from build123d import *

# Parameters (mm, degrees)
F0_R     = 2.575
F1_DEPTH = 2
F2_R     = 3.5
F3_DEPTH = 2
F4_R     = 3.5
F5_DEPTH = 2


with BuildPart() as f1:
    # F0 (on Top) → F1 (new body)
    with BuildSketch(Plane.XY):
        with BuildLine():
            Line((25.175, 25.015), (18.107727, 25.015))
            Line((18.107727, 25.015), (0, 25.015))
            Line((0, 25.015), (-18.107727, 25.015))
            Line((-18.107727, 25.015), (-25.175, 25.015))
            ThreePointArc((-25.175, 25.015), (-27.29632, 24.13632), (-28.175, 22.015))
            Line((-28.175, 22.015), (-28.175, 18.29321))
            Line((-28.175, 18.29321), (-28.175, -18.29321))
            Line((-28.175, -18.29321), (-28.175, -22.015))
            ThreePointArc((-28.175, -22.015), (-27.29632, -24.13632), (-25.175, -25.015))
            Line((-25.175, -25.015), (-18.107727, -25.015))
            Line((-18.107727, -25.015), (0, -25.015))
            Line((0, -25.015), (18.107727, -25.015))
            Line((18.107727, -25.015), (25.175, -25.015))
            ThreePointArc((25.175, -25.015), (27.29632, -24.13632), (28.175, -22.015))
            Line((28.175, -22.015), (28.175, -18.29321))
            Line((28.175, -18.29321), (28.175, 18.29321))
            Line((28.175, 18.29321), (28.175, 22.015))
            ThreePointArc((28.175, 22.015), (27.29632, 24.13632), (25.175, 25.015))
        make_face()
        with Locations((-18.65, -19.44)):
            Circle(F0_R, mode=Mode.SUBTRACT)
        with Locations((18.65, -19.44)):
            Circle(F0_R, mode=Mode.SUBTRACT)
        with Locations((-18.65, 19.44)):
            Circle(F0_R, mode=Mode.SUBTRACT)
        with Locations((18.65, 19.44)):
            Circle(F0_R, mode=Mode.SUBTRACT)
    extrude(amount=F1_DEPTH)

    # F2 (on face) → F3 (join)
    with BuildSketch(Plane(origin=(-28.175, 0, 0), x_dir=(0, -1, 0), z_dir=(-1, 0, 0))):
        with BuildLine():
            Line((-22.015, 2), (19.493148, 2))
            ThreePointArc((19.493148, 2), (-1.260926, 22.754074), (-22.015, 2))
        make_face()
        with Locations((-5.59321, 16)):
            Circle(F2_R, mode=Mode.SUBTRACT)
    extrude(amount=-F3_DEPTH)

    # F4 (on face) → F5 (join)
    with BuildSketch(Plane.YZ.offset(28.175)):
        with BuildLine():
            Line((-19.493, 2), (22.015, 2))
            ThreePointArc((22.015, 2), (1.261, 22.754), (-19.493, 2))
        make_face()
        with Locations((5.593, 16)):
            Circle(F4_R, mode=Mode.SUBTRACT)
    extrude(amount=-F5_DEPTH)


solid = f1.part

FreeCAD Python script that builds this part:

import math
import FreeCAD as App
import Part
import Sketcher

V = App.Vector
Q = App.Units.Quantity

doc = App.newDocument("Part")
body = doc.addObject("PartDesign::Body", "Body")

sketch1 = body.newObject("Sketcher::SketchObject", "Sketch")
sketch1.AttachmentSupport = (doc.getObject("XY_Plane"), [""])
sketch1.MapMode = "FlatFace"
sketch1.addGeometry([
    Part.LineSegment(V(25.175, 25.015, 0), V(-25.175, 25.015, 0)),
    Part.ArcOfCircle(Part.Circle(V(-25.174999, 22.014999, 0), V(0, 0, 1), 3.000001), math.radians(90.000022), math.radians(179.999978)),
    Part.LineSegment(V(-28.175, 22.015, 0), V(-28.175, -22.015, 0)),
    Part.ArcOfCircle(Part.Circle(V(-25.174999, -22.014999, 0), V(0, 0, 1), 3.000001), math.radians(-179.999978), math.radians(-90.000022)),
    Part.LineSegment(V(-25.175, -25.015, 0), V(25.175, -25.015, 0)),
    Part.ArcOfCircle(Part.Circle(V(25.174999, -22.014999, 0), V(0, 0, 1), 3.000001), math.radians(-89.999978), math.radians(-0.000022)),
    Part.LineSegment(V(28.175, -22.015, 0), V(28.175, 22.015, 0)),
    Part.ArcOfCircle(Part.Circle(V(25.174999, 22.014999, 0), V(0, 0, 1), 3.000001), math.radians(0.000022), math.radians(89.999978)),
    Part.Circle(V(-18.65, -19.44, 0), V(0, 0, 1), 2.575),
    Part.Circle(V(18.65, -19.44, 0), V(0, 0, 1), 2.575),
    Part.Circle(V(-18.65, 19.44, 0), V(0, 0, 1), 2.575),
    Part.Circle(V(18.65, 19.44, 0), V(0, 0, 1), 2.575),
], False)
sketch1.addConstraint([
    Sketcher.Constraint("Tangent", 0, 2, 1, 1),
    Sketcher.Constraint("Tangent", 1, 2, 2, 1),
    Sketcher.Constraint("Tangent", 2, 2, 3, 1),
    Sketcher.Constraint("Tangent", 3, 2, 4, 1),
    Sketcher.Constraint("Tangent", 4, 2, 5, 1),
    Sketcher.Constraint("Tangent", 5, 2, 6, 1),
    Sketcher.Constraint("Tangent", 6, 2, 7, 1),
    Sketcher.Constraint("Tangent", 7, 2, 0, 1),
    Sketcher.Constraint("Horizontal", 0),
    Sketcher.Constraint("Vertical", 2),
    Sketcher.Constraint("Horizontal", 4),
    Sketcher.Constraint("Vertical", 6),
    Sketcher.Constraint("Equal", 1, 3),
    Sketcher.Constraint("Equal", 3, 5),
    Sketcher.Constraint("Equal", 5, 7),
    Sketcher.Constraint("Equal", 8, 9),
    Sketcher.Constraint("Equal", 9, 10),
    Sketcher.Constraint("Equal", 10, 11),
    Sketcher.Constraint("Symmetric", 1, 3, 5, 3, -1, 1),
    Sketcher.Constraint("Symmetric", 9, 3, 10, 3, -1, 1),
    Sketcher.Constraint("Symmetric", 8, 3, 11, 3, -1, 1),
    Sketcher.Constraint("Symmetric", 8, 3, 9, 3, -2),
    Sketcher.Constraint("Radius", 1, Q("3.000001 mm")),
    Sketcher.Constraint("Diameter", 8, Q("5.15 mm")),
    Sketcher.Constraint("DistanceX", 0, 2, 0, 1, Q("50.35 mm")),
    Sketcher.Constraint("DistanceY", 2, 2, 2, 1, Q("44.03 mm")),
    Sketcher.Constraint("DistanceX", 8, 3, 9, 3, Q("37.3 mm")),
    Sketcher.Constraint("DistanceY", 8, 3, -1, 1, Q("19.44 mm")),
])
pad1 = body.newObject("PartDesign::Pad", "Pad")
pad1.Profile = sketch1
pad1.Length = 2

sketch2 = body.newObject("Sketcher::SketchObject", "Sketch001")
sketch2.AttachmentSupport = (doc.getObject("YZ_Plane"), [""])
sketch2.MapMode = "FlatFace"
sketch2.AttachmentOffset = App.Placement(V(0, 0, -28.175), App.Rotation())
sketch2.addGeometry([
    Part.LineSegment(V(22.015, 2, 0), V(-19.493148, 2, 0)),
    Part.ArcOfCircle(Part.Circle(V(1.260926, 2, 0), V(0, 0, 1), 20.754074), math.radians(0), math.radians(180)),
    Part.Circle(V(5.59321, 16, 0), V(0, 0, 1), 3.5),
], False)
sketch2.addConstraint([
    Sketcher.Constraint("Coincident", 0, 1, 1, 1),
    Sketcher.Constraint("Coincident", 1, 2, 0, 2),
    Sketcher.Constraint("Horizontal", 0),
    Sketcher.Constraint("Horizontal", 1, 3, 0, 1),
    Sketcher.Constraint("Diameter", 2, Q("7 mm")),
    Sketcher.Constraint("DistanceY", -1, 1, 1, 3, Q("2 mm")),
    Sketcher.Constraint("DistanceY", -1, 1, 2, 3, Q("16 mm")),
    Sketcher.Constraint("DistanceX", -1, 1, 0, 1, Q("22.015 mm")),
    Sketcher.Constraint("Radius", 1, Q("20.754074 mm")),
    Sketcher.Constraint("DistanceX", -1, 1, 2, 3, Q("5.59321 mm")),
])
pad2 = body.newObject("PartDesign::Pad", "Pad001")
pad2.Profile = sketch2
pad2.Length = 2

sketch3 = body.newObject("Sketcher::SketchObject", "Sketch002")
sketch3.AttachmentSupport = (doc.getObject("YZ_Plane"), [""])
sketch3.MapMode = "FlatFace"
sketch3.AttachmentOffset = App.Placement(V(0, 0, 28.175), App.Rotation())
sketch3.addGeometry([
    Part.LineSegment(V(-19.493, 2, 0), V(22.015, 2, 0)),
    Part.ArcOfCircle(Part.Circle(V(1.261, 2, 0), V(0, 0, 1), 20.754), math.radians(0), math.radians(180)),
    Part.Circle(V(5.593, 16, 0), V(0, 0, 1), 3.5),
], False)
sketch3.addConstraint([
    Sketcher.Constraint("Coincident", 0, 1, 1, 2),
    Sketcher.Constraint("Coincident", 1, 1, 0, 2),
    Sketcher.Constraint("Horizontal", 0),
    Sketcher.Constraint("Horizontal", 1, 3, 0, 1),
    Sketcher.Constraint("Diameter", 2, Q("7 mm")),
    Sketcher.Constraint("DistanceY", -1, 1, 1, 3, Q("2 mm")),
    Sketcher.Constraint("DistanceY", -1, 1, 2, 3, Q("16 mm")),
    Sketcher.Constraint("Radius", 1, Q("20.754 mm")),
    Sketcher.Constraint("DistanceX", -1, 1, 1, 3, Q("1.261 mm")),
    Sketcher.Constraint("DistanceX", -1, 1, 2, 3, Q("5.593 mm")),
])
pad3 = body.newObject("PartDesign::Pad", "Pad002")
pad3.Profile = sketch3
pad3.Length = 2
pad3.Reversed = True

doc.recompute()
